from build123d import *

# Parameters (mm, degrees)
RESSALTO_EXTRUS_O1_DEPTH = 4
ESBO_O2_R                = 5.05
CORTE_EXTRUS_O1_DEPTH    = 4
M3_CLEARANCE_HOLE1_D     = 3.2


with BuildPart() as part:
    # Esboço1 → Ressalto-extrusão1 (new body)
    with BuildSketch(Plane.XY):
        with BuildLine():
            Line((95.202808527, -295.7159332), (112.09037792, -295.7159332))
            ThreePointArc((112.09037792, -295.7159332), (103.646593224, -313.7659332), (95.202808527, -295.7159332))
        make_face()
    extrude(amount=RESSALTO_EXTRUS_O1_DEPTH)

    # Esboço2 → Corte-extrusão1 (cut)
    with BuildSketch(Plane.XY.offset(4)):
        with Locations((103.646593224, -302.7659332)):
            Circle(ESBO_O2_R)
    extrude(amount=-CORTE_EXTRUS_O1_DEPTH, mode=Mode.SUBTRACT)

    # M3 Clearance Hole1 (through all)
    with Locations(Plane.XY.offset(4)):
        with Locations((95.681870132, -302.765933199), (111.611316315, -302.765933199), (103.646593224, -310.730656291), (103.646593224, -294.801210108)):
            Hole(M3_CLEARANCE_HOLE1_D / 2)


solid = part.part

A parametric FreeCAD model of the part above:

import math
import FreeCAD as App
import Part
import Sketcher
from FreeCAD import Vector

doc = App.newDocument("Part")
body = doc.addObject("PartDesign::Body", "Body")

sketch1 = body.newObject("Sketcher::SketchObject", "Sketch")
sketch1.AttachmentSupport = (doc.getObject("XY_Plane"), [""])
sketch1.MapMode = "FlatFace"
sketch1.addGeometry(Part.LineSegment(Vector(112, -296, 0), Vector(95, -296, 0)), False)
sketch1.addGeometry(Part.ArcOfCircle(Part.Circle(Vector(104, -303, 0), Vector(0, 0, 1), 11), math.radians(140), math.radians(400)), False)
sketch1.addConstraint(Sketcher.Constraint("Coincident", 0, 1, 1, 2))
sketch1.addConstraint(Sketcher.Constraint("Coincident", 1, 1, 0, 2))
sketch1.addConstraint(Sketcher.Constraint("Horizontal", 0))
sketch1.addConstraint(Sketcher.Constraint("Radius", 1, 11.0))
sketch1.addConstraint(Sketcher.Constraint("DistanceY", 1, 3, 0, 1, 7.05))
sketch1.addConstraint(Sketcher.Constraint("DistanceX", -1, 1, 1, 1, 95.202809))
sketch1.addConstraint(Sketcher.Constraint("DistanceY", 1, 3, -1, 1, 302.765933))
pad1 = body.newObject("PartDesign::Pad", "Pad")
pad1.Profile = sketch1
pad1.Length = 4

sketch2 = body.newObject("Sketcher::SketchObject", "Sketch001")
sketch2.AttachmentSupport = (doc.getObject("XY_Plane"), [""])
sketch2.MapMode = "FlatFace"
sketch2.AttachmentOffset = App.Placement(Vector(0, 0, 4), App.Rotation())
sketch2.addGeometry(Part.Circle(Vector(104, -303, 0), Vector(0, 0, 1), 5), False)
sketch2.addConstraint(Sketcher.Constraint("Diameter", 0, 10.1))
sketch2.addConstraint(Sketcher.Constraint("DistanceX", -1, 1, 0, 3, 103.646593))
sketch2.addConstraint(Sketcher.Constraint("DistanceY", 0, 3, -1, 1, 302.765933))
pocket1 = body.newObject("PartDesign::Pocket", "Pocket")
pocket1.Profile = sketch2
pocket1.Length = 4

sketch3 = body.newObject("Sketcher::SketchObject", "Sketch002")
sketch3.AttachmentSupport = (doc.getObject("XY_Plane"), [""])
sketch3.MapMode = "FlatFace"
sketch3.AttachmentOffset = App.Placement(Vector(0, 0, 4), App.Rotation())
sketch3.addGeometry(Part.Circle(Vector(95.7, -302.8, 0), Vector(0, 0, 1), 1.6), False)
sketch3.addGeometry(Part.Circle(Vector(111.6, -302.8, 0), Vector(0, 0, 1), 1.6), False)
sketch3.addGeometry(Part.Circle(Vector(103.6, -310.7, 0), Vector(0, 0, 1), 1.6), False)
sketch3.addGeometry(Part.Circle(Vector(103.6, -294.8, 0), Vector(0, 0, 1), 1.6), False)
sketch3.addConstraint(Sketcher.Constraint("Equal", 0, 1))
sketch3.addConstraint(Sketcher.Constraint("Equal", 1, 2))
sketch3.addConstraint(Sketcher.Constraint("Equal", 2, 3))
sketch3.addConstraint(Sketcher.Constraint("Horizontal", 0, 3, 1, 3))
sketch3.addConstraint(Sketcher.Constraint("Vertical", 2, 3, 3, 3))
sketch3.addConstraint(Sketcher.Constraint("Diameter", 0, 3.2))
sketch3.addConstraint(Sketcher.Constraint("DistanceX", -1, 1, 0, 3, 95.68187))
sketch3.addConstraint(Sketcher.Constraint("DistanceY", 3, 3, -1, 1, 294.80121))
sketch3.addConstraint(Sketcher.Constraint("DistanceY", 0, 3, -1, 1, 302.765933))
sketch3.addConstraint(Sketcher.Constraint("DistanceX", -1, 1, 1, 3, 111.611316))
sketch3.addConstraint(Sketcher.Constraint("DistanceX", -1, 1, 2, 3, 103.646593))
sketch3.addConstraint(Sketcher.Constraint("DistanceY", 2, 3, -1, 1, 310.730656))
doc.recompute()
hole = body.newObject("PartDesign::Hole", "Hole")
hole.Profile = sketch3
hole.ThreadType = "None"
hole.Diameter = 3.2
hole.DepthType = "ThroughAll"

doc.recompute()
